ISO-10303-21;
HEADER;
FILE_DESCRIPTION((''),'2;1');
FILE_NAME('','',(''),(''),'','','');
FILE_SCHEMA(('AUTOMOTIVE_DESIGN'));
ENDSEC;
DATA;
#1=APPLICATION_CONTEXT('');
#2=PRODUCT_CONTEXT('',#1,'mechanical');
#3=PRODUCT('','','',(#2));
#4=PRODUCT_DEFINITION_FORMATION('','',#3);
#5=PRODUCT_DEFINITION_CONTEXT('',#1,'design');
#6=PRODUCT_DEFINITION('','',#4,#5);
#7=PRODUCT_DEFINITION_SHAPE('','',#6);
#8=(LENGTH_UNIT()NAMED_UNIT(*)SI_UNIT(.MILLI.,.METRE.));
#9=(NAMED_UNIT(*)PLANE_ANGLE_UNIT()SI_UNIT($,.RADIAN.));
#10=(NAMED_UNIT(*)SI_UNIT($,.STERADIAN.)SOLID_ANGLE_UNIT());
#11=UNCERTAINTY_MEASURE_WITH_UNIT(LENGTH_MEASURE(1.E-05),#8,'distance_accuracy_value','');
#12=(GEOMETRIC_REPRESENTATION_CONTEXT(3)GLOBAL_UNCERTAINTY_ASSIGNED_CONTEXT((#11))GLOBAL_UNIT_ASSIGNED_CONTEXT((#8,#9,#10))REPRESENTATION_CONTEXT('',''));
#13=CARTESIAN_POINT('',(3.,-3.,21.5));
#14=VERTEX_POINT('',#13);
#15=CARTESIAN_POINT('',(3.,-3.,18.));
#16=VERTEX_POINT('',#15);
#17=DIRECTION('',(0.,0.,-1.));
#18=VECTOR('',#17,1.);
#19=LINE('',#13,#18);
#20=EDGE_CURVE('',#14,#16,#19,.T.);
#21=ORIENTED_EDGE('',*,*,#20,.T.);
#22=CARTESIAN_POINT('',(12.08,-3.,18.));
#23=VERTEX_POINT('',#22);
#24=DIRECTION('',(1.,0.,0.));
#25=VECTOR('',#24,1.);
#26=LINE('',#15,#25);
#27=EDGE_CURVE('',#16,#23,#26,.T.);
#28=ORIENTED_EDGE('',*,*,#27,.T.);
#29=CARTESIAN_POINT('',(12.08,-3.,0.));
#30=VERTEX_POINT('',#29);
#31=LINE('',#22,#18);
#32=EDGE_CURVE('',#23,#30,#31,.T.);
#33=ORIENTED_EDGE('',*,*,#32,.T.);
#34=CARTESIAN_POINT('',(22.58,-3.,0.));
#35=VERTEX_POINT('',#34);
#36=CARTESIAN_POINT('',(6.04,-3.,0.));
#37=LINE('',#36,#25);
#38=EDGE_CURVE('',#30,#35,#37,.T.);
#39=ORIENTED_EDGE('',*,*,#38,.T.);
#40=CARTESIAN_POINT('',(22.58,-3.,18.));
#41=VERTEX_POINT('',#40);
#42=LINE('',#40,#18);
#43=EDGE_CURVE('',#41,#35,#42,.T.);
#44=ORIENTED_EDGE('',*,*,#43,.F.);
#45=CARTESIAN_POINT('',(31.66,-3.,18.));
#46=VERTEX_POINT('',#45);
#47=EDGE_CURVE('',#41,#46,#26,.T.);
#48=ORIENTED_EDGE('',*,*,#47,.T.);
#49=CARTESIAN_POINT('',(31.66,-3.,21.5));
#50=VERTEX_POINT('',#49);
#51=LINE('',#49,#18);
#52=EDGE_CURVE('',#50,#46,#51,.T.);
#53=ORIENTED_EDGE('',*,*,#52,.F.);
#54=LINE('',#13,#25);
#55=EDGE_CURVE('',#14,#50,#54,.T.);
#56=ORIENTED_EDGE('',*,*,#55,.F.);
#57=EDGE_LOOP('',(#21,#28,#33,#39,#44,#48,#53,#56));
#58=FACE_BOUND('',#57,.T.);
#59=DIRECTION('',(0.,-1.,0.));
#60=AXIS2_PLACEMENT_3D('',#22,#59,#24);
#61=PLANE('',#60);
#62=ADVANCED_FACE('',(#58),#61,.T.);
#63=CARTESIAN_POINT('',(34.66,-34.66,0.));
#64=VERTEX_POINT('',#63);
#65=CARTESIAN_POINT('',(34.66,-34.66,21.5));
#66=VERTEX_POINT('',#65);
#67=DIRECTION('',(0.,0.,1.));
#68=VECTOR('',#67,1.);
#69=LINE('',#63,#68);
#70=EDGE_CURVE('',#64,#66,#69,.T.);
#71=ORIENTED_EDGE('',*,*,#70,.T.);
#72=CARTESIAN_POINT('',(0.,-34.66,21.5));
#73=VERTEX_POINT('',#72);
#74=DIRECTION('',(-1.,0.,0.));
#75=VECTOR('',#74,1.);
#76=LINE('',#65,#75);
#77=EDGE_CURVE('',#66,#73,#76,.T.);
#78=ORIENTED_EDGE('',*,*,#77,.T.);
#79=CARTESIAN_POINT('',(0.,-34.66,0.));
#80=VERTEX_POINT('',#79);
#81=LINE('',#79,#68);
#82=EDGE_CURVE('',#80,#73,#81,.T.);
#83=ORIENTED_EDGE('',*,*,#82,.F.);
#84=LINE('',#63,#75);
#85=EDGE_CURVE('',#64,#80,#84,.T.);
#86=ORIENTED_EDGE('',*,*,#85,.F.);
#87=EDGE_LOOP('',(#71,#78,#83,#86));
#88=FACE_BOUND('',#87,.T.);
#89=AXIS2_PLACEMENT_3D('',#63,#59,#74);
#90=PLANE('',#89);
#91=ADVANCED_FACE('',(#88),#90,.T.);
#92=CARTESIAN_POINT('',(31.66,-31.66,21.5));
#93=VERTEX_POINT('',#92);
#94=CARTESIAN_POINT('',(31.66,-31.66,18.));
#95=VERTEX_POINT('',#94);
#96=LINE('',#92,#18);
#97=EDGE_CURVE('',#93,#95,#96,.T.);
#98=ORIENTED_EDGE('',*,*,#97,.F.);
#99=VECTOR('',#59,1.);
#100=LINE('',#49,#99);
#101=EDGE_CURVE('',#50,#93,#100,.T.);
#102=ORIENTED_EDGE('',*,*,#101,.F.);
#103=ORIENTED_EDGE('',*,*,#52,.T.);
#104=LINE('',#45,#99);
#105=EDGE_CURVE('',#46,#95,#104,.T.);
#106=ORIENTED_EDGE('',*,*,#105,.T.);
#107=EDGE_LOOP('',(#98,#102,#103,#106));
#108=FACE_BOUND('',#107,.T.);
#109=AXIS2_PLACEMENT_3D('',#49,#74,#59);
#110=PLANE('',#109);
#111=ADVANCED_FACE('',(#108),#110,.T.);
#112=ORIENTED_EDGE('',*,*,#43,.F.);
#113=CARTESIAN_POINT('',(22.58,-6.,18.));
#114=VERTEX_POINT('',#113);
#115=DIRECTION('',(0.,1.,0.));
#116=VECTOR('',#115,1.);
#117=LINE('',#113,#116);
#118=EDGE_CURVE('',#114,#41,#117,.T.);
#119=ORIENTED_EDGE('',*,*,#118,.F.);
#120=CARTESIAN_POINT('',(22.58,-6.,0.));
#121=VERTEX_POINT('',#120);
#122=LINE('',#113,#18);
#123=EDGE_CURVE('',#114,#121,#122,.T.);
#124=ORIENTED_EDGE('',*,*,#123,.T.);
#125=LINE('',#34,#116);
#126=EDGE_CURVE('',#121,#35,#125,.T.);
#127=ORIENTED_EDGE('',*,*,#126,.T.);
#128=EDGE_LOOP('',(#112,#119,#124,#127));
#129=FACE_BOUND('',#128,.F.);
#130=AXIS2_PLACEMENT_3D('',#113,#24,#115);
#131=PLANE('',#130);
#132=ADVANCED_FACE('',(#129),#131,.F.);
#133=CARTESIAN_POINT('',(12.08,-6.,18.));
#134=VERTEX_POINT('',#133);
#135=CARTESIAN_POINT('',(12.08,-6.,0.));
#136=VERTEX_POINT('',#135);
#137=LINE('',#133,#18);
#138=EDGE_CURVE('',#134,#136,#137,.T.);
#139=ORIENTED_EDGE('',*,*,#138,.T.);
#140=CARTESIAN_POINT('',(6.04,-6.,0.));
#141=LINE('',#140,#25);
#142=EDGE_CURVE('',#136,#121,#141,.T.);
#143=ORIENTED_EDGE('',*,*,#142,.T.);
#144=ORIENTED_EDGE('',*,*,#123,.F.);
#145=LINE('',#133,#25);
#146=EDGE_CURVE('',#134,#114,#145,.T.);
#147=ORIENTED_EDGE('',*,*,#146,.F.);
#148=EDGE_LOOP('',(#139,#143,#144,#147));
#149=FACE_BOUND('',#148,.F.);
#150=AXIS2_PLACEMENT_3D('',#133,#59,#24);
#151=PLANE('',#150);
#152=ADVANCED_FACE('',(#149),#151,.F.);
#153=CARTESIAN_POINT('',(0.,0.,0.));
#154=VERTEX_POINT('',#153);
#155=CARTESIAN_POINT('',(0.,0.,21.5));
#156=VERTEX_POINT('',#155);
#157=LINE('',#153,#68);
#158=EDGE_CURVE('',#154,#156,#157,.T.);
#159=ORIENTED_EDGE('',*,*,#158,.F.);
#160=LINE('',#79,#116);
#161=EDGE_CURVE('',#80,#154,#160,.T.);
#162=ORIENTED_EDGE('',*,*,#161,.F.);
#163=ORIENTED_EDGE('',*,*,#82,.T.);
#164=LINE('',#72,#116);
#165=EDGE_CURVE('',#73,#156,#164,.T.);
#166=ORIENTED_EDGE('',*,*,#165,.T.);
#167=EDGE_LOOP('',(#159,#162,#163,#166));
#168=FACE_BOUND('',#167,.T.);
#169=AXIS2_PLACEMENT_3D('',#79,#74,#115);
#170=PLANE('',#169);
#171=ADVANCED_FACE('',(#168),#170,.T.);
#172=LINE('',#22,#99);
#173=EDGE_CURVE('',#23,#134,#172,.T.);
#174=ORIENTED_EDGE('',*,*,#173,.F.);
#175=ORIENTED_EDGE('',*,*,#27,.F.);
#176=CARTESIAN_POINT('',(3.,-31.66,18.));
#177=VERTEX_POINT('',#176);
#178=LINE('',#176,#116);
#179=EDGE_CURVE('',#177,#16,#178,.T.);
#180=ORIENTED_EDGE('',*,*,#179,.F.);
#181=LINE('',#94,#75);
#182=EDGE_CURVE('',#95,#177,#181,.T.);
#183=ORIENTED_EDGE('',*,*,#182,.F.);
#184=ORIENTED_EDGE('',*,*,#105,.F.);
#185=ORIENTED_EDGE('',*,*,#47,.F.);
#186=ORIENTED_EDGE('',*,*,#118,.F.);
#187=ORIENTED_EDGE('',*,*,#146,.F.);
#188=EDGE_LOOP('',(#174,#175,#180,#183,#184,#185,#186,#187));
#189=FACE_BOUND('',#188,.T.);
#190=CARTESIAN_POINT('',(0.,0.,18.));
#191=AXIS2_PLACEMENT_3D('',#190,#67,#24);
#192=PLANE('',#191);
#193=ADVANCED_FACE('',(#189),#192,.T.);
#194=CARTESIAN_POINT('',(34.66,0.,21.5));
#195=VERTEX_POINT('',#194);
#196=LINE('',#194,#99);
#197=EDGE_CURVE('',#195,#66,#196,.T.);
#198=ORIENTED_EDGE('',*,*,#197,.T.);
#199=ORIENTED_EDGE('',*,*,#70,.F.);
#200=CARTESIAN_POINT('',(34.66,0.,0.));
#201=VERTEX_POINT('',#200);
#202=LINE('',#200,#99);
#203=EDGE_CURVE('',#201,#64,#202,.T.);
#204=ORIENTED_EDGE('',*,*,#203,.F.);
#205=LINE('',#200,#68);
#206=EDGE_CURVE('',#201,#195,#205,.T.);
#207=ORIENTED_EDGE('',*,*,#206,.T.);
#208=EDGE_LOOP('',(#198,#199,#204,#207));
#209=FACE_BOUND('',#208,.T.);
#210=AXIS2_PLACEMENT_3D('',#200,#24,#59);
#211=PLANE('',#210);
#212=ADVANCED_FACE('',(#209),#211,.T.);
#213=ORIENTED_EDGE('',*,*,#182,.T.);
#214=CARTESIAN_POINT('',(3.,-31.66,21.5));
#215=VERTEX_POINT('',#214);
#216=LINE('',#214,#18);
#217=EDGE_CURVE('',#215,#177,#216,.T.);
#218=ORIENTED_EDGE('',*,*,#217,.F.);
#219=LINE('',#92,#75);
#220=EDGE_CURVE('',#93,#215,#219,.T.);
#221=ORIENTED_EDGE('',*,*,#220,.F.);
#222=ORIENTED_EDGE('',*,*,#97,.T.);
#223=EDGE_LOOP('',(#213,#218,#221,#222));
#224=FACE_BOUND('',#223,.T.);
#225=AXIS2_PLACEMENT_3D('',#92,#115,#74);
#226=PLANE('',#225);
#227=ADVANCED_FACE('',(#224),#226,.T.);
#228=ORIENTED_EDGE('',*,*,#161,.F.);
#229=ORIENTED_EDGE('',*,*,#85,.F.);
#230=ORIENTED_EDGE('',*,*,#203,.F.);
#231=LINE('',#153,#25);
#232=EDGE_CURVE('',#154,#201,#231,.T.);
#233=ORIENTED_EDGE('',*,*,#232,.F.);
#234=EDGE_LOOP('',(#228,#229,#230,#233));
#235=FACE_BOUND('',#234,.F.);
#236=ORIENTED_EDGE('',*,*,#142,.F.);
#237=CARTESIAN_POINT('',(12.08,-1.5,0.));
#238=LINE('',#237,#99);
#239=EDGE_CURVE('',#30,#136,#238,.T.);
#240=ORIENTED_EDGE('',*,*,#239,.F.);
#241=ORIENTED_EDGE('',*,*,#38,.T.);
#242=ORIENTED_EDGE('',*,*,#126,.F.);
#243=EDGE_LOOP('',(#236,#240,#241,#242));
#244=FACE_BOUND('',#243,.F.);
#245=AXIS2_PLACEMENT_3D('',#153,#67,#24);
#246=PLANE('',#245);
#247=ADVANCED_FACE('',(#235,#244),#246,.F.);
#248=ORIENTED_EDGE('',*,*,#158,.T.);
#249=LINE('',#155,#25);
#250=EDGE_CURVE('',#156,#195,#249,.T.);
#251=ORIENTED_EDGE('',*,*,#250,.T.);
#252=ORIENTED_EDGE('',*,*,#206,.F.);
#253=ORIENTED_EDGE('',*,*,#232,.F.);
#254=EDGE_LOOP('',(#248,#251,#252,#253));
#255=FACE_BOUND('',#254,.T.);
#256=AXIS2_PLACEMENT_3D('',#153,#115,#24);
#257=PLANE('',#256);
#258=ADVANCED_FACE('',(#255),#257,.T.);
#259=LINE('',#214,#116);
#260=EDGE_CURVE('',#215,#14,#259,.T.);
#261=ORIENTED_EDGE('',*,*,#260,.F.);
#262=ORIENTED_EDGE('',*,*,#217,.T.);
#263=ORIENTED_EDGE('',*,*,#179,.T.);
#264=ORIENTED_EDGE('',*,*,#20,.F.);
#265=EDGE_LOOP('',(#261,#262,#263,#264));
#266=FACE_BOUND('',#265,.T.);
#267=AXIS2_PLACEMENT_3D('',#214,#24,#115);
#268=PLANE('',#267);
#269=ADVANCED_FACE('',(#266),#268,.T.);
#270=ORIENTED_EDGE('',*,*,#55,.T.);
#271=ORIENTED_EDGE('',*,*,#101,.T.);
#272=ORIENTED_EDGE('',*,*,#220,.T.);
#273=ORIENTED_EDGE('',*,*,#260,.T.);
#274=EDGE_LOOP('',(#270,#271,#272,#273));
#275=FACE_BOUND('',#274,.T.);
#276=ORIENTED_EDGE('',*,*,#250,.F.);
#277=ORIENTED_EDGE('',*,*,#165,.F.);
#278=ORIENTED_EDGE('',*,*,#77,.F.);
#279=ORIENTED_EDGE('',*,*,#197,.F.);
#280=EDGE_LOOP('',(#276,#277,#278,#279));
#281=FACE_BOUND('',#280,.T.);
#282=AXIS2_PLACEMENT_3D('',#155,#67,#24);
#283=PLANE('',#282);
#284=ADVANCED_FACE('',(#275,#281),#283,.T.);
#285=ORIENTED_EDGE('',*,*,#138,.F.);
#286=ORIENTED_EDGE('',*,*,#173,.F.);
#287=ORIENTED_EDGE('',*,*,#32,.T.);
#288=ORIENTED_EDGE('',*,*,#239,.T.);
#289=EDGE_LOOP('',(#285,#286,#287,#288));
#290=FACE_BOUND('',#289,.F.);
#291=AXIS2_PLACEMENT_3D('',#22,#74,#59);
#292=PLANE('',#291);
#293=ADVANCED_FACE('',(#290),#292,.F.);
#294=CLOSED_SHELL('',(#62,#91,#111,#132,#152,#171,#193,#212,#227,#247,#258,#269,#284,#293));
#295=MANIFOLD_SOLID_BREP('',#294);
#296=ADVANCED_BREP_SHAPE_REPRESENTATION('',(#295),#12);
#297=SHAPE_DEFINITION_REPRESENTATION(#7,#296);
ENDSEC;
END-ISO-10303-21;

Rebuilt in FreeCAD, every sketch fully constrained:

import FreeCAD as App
import Part
import Sketcher


def add_polygon(sketch, points):
    """Adds a closed chain of lines whose ends are joined by coincident constraints."""
    first, n = sketch.GeometryCount, len(points)
    for a, b in zip(points, points[1:] + points[:1]):
        sketch.addGeometry(Part.LineSegment(App.Vector(*a, 0), App.Vector(*b, 0)), False)
    for i in range(n):
        sketch.addConstraint(Sketcher.Constraint("Coincident", first + i, 2, first + (i + 1) % n, 1))

doc = App.newDocument("Part")
params = doc.addObject("Spreadsheet::Sheet", "Params")
for row, (alias, value) in enumerate([
    ("sketch1_width", "34.66 mm"),
    ("pad1_length", "21.5 mm"),
    ("sketch2_width", "28.66 mm"),
    ("pocket1_length", "3.5 mm"),
    ("sketch3_height", "3 mm"),
    ("sketch3_width", "10.5 mm"),
    ("pocket2_length", "19 mm"),
], start=1):
    params.set(f"A{row}", alias)
    params.set(f"B{row}", "=" + value)
    params.setAlias(f"B{row}", alias)

body = doc.addObject("PartDesign::Body", "Body")

# Sketch on XY plane
sketch1 = body.newObject("Sketcher::SketchObject", "Sketch")
sketch1.AttachmentSupport = (doc.getObject("XY_Plane"), [""])
sketch1.MapMode = "FlatFace"
add_polygon(sketch1, [(35, 0), (0, 0), (0, -35), (35, -35)])  # lines 0-3
sketch1.addConstraint(Sketcher.Constraint("Horizontal", 0))
sketch1.addConstraint(Sketcher.Constraint("Vertical", 1))
sketch1.addConstraint(Sketcher.Constraint("Horizontal", 2))
sketch1.addConstraint(Sketcher.Constraint("Vertical", 3))
sketch1.addConstraint(Sketcher.Constraint("Coincident", 0, 2, -1, 1))
sketch1.addConstraint(Sketcher.Constraint("Equal", 2, 1))
sketch1.addConstraint(Sketcher.Constraint("DistanceX", 0, 2, 0, 1, 34.66))
sketch1.setExpression("Constraints[10]", "Params.sketch1_width")
pad1 = body.newObject("PartDesign::Pad", "Pad")
pad1.Profile = sketch1
pad1.setExpression("Length", "Params.pad1_length")

# Sketch on XY plane
sketch2 = body.newObject("Sketcher::SketchObject", "Sketch001")
sketch2.AttachmentSupport = (doc.getObject("XY_Plane"), [""])
sketch2.MapMode = "FlatFace"
sketch2.AttachmentOffset = App.Placement(App.Vector(0, 0, 21.5), App.Rotation())
add_polygon(sketch2, [(32, -3), (3, -3), (3, -32), (32, -32)])  # lines 0-3
sketch2.addConstraint(Sketcher.Constraint("Horizontal", 0))
sketch2.addConstraint(Sketcher.Constraint("Vertical", 1))
sketch2.addConstraint(Sketcher.Constraint("Horizontal", 2))
sketch2.addConstraint(Sketcher.Constraint("Vertical", 3))
sketch2.addConstraint(Sketcher.Constraint("Equal", 2, 1))
sketch2.addConstraint(Sketcher.Constraint("DistanceX", -1, 1, 0, 2, 3.0))
sketch2.addConstraint(Sketcher.Constraint("DistanceY", 0, 2, -1, 1, 3.0))
sketch2.addConstraint(Sketcher.Constraint("DistanceX", 0, 2, 0, 1, 28.66))
sketch2.setExpression("Constraints[11]", "Params.sketch2_width")
pocket1 = body.newObject("PartDesign::Pocket", "Pocket")
pocket1.Profile = sketch2
pocket1.setExpression("Length", "Params.pocket1_length")

# Sketch on XY plane
sketch3 = body.newObject("Sketcher::SketchObject", "Sketch002")
sketch3.AttachmentSupport = (doc.getObject("XY_Plane"), [""])
sketch3.MapMode = "FlatFace"
sketch3.AttachmentOffset = App.Placement(App.Vector(0, 0, 18), App.Rotation())
add_polygon(sketch3, [(22.6, -3), (12.1, -3), (12.1, -6), (22.6, -6)])  # lines 0-3
sketch3.addConstraint(Sketcher.Constraint("Horizontal", 0))
sketch3.addConstraint(Sketcher.Constraint("Vertical", 1))
sketch3.addConstraint(Sketcher.Constraint("Horizontal", 2))
sketch3.addConstraint(Sketcher.Constraint("Vertical", 3))
sketch3.addConstraint(Sketcher.Constraint("DistanceY", 1, 2, 1, 1, 3.0))
sketch3.addConstraint(Sketcher.Constraint("DistanceY", 0, 2, -1, 1, 3.0))
sketch3.addConstraint(Sketcher.Constraint("DistanceX", 0, 2, 0, 1, 10.5))
sketch3.addConstraint(Sketcher.Constraint("DistanceX", -1, 1, 0, 2, 12.08))
sketch3.setExpression("Constraints[8]", "Params.sketch3_height")
sketch3.setExpression("Constraints[10]", "Params.sketch3_width")
pocket2 = body.newObject("PartDesign::Pocket", "Pocket001")
pocket2.Profile = sketch3
pocket2.setExpression("Length", "Params.pocket2_length")

doc.recompute()
